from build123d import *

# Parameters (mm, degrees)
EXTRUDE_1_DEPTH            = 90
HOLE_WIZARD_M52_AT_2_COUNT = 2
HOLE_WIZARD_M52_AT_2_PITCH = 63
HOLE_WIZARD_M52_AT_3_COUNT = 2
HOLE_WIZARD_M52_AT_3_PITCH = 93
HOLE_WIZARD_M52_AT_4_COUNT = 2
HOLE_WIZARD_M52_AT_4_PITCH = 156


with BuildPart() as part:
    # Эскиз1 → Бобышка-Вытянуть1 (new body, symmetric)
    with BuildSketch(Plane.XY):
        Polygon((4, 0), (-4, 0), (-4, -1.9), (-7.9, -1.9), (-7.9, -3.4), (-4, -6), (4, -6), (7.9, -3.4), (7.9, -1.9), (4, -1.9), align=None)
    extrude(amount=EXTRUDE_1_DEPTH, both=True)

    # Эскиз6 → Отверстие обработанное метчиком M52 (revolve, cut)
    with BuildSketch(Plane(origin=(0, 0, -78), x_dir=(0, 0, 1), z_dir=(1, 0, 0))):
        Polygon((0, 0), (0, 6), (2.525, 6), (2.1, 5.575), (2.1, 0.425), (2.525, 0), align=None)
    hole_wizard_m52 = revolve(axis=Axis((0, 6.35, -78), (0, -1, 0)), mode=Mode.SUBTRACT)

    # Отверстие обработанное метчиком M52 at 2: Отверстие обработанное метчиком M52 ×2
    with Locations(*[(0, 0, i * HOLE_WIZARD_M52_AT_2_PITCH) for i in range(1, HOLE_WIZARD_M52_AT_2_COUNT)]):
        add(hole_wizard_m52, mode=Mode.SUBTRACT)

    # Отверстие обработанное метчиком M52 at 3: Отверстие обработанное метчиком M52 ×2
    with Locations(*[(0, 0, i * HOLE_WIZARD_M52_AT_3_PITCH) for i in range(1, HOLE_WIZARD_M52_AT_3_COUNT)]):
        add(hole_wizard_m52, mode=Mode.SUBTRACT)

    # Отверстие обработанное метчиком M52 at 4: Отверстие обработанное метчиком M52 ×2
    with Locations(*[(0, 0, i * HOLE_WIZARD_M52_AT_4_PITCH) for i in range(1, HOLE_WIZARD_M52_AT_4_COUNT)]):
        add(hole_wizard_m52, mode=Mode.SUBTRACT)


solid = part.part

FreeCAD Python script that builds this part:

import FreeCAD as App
import Part
import Sketcher
Q = App.Units.Quantity


def add_polygon(sketch, points):
    """Adds a closed chain of lines whose ends are joined by coincident constraints."""
    first, n = sketch.GeometryCount, len(points)
    for a, b in zip(points, points[1:] + points[:1]):
        sketch.addGeometry(Part.LineSegment(App.Vector(*a, 0), App.Vector(*b, 0)), False)
    for i in range(n):
        sketch.addConstraint(Sketcher.Constraint("Coincident", first + i, 2, first + (i + 1) % n, 1))

doc = App.newDocument("Part")
body = doc.addObject("PartDesign::Body", "Body")

# Sketch on XY plane
sketch1 = body.newObject("Sketcher::SketchObject", "Sketch")
sketch1.AttachmentSupport = (doc.getObject("XY_Plane"), [""])
sketch1.MapMode = "FlatFace"
add_polygon(sketch1, [(4, 0), (-4, 0), (-4, -1.9), (-7.9, -1.9), (-7.9, -3.4), (-4, -6), (4, -6), (7.9, -3.4), (7.9, -1.9), (4, -1.9)])  # lines 0-9
sketch1.addConstraint(Sketcher.Constraint("Horizontal", 0))
sketch1.addConstraint(Sketcher.Constraint("Vertical", 1))
sketch1.addConstraint(Sketcher.Constraint("Horizontal", 2))
sketch1.addConstraint(Sketcher.Constraint("Vertical", 3))
sketch1.addConstraint(Sketcher.Constraint("Horizontal", 5))
sketch1.addConstraint(Sketcher.Constraint("Vertical", 7))
sketch1.addConstraint(Sketcher.Constraint("Horizontal", 8))
sketch1.addConstraint(Sketcher.Constraint("Vertical", 9))
sketch1.addConstraint(Sketcher.Constraint("Symmetric", 0, 2, 9, 2, -1, 1))
sketch1.addConstraint(Sketcher.Constraint("Symmetric", 3, 2, 6, 2, -2))
sketch1.addConstraint(Sketcher.Constraint("Horizontal", 2, 2, 7, 2))
sketch1.addConstraint(Sketcher.Constraint("Vertical", 1, 2, 4, 2))
sketch1.addConstraint(Sketcher.Constraint("Vertical", 5, 2, 8, 2))
sketch1.addConstraint(Sketcher.Constraint("DistanceX", 0, 2, 0, 1, Q("8 mm")))
sketch1.addConstraint(Sketcher.Constraint("DistanceX", 2, 2, 2, 1, Q("3.9 mm")))
sketch1.addConstraint(Sketcher.Constraint("DistanceY", 1, 2, 1, 1, Q("1.9 mm")))
sketch1.addConstraint(Sketcher.Constraint("DistanceY", 3, 2, 3, 1, Q("1.5 mm")))
sketch1.addConstraint(Sketcher.Constraint("DistanceY", 4, 2, -1, 1, Q("6 mm")))
pad1 = body.newObject("PartDesign::Pad", "Pad")
pad1.Profile = sketch1
pad1.Length = 180
pad1.Midplane = True

# Sketch on YZ plane
sketch2 = body.newObject("Sketcher::SketchObject", "Sketch001")
sketch2.AttachmentSupport = (doc.getObject("YZ_Plane"), [""])
sketch2.MapMode = "FlatFace"
add_polygon(sketch2, [(-6, -78), (0, -78), (0, -75.5), (-0.4, -75.9), (-5.6, -75.9), (-6, -75.5)])  # lines 0-5
sketch2.addGeometry(Part.LineSegment(App.Vector(0, -78, 0), App.Vector(-6, -78, 0)), True)  # axis
sketch2.addConstraint(Sketcher.Constraint("Horizontal", 0))
sketch2.addConstraint(Sketcher.Constraint("Vertical", 1))
sketch2.addConstraint(Sketcher.Constraint("Horizontal", 3))
sketch2.addConstraint(Sketcher.Constraint("Vertical", 5))
sketch2.addConstraint(Sketcher.Constraint("Horizontal", 6))
sketch2.addConstraint(Sketcher.Constraint("Coincident", 6, 1, 0, 2))
sketch2.addConstraint(Sketcher.Constraint("PointOnObject", 0, 2, -2))
sketch2.addConstraint(Sketcher.Constraint("Perpendicular", 2, 4))
sketch2.addConstraint(Sketcher.Constraint("Horizontal", 1, 2, 4, 2))
sketch2.addConstraint(Sketcher.Constraint("Vertical", 4, 2, 6, 2))
sketch2.addConstraint(Sketcher.Constraint("Equal", 2, 4))
sketch2.addConstraint(Sketcher.Constraint("DistanceX", 0, 1, 0, 2, Q("6 mm")))
sketch2.addConstraint(Sketcher.Constraint("DistanceY", 0, 2, -1, 1, Q("78 mm")))
sketch2.addConstraint(Sketcher.Constraint("DistanceX", 3, 2, 3, 1, Q("5.15 mm")))
sketch2.addConstraint(Sketcher.Constraint("DistanceY", 2, 2, -1, 1, Q("75.9 mm")))
groove = body.newObject("PartDesign::Groove", "Groove")
groove.Profile = sketch2
groove.ReferenceAxis = (sketch2, ["Axis0"])
groove.Angle = 360
doc.recompute()

linearpattern = body.newObject("PartDesign::LinearPattern", "LinearPattern")
linearpattern.Originals = [groove]
linearpattern.Direction = (doc.getObject("Z_Axis"), [""])
linearpattern.Mode = "offset"
linearpattern.Offset = 63
linearpattern.Occurrences = 2
body.Tip = linearpattern
doc.recompute()

linearpattern2 = body.newObject("PartDesign::LinearPattern", "LinearPattern001")
linearpattern2.Originals = [groove]
linearpattern2.Direction = (doc.getObject("Z_Axis"), [""])
linearpattern2.Mode = "offset"
linearpattern2.Offset = 93
linearpattern2.Occurrences = 2
body.Tip = linearpattern2
doc.recompute()

linearpattern3 = body.newObject("PartDesign::LinearPattern", "LinearPattern002")
linearpattern3.Originals = [groove]
linearpattern3.Direction = (doc.getObject("Z_Axis"), [""])
linearpattern3.Mode = "offset"
linearpattern3.Offset = 156
linearpattern3.Occurrences = 2
body.Tip = linearpattern3

doc.recompute()
